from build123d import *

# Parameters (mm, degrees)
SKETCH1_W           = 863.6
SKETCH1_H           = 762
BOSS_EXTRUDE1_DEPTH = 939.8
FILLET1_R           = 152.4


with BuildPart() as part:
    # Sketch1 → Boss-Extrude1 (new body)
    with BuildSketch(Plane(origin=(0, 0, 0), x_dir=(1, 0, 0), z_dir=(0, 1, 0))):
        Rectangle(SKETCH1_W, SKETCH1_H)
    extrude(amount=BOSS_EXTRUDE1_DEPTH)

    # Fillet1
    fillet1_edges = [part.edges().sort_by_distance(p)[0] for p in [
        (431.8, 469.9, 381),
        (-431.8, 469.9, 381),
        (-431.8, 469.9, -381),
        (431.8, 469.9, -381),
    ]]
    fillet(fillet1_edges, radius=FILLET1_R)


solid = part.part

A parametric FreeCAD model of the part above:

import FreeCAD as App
import Part
import Sketcher

V = App.Vector
Q = App.Units.Quantity


def edges_at(feature, points):
    """Names of the edges that pass closest to the given points."""
    edges = feature.Shape.Edges
    near = lambda p: min(range(len(edges)), key=lambda i: edges[i].distToShape(Part.Vertex(*p))[0])
    return sorted({f"Edge{near(p) + 1}" for p in points})

doc = App.newDocument("Part")
body = doc.addObject("PartDesign::Body", "Body")

sketch1 = body.newObject("Sketcher::SketchObject", "Sketch")
sketch1.AttachmentSupport = (doc.getObject("XZ_Plane"), [""])
sketch1.MapMode = "FlatFace"
sketch1.addGeometry(Part.LineSegment(V(-431.8, -381, 0), V(-431.8, 381, 0)), False)
sketch1.addGeometry(Part.LineSegment(V(-431.8, 381, 0), V(431.8, 381, 0)), False)
sketch1.addGeometry(Part.LineSegment(V(431.8, 381, 0), V(431.8, -381, 0)), False)
sketch1.addGeometry(Part.LineSegment(V(431.8, -381, 0), V(-431.8, -381, 0)), False)
sketch1.addConstraint(Sketcher.Constraint("Coincident", 0, 2, 1, 1))
sketch1.addConstraint(Sketcher.Constraint("Coincident", 1, 2, 2, 1))
sketch1.addConstraint(Sketcher.Constraint("Coincident", 2, 2, 3, 1))
sketch1.addConstraint(Sketcher.Constraint("Coincident", 3, 2, 0, 1))
sketch1.addConstraint(Sketcher.Constraint("Vertical", 0))
sketch1.addConstraint(Sketcher.Constraint("Horizontal", 1))
sketch1.addConstraint(Sketcher.Constraint("Vertical", 2))
sketch1.addConstraint(Sketcher.Constraint("Horizontal", 3))
sketch1.addConstraint(Sketcher.Constraint("Symmetric", 0, 2, 2, 2, -1, 1))
sketch1.addConstraint(Sketcher.Constraint("DistanceX", 1, 1, 1, 2, Q("34 in")))
sketch1.addConstraint(Sketcher.Constraint("DistanceY", 0, 1, 0, 2, Q("30 in")))
pad1 = body.newObject("PartDesign::Pad", "Pad")
pad1.Profile = sketch1
pad1.Length = Q("37 in")
pad1.Reversed = True
doc.recompute()

fillet = body.newObject("PartDesign::Fillet", "Fillet")
fillet.Base = (pad1, edges_at(pad1, [
    (431.8, 469.9, 381),
    (-431.8, 469.9, 381),
    (-431.8, 469.9, -381),
    (431.8, 469.9, -381),
]))
fillet.Radius = Q("6 in")

doc.recompute()
